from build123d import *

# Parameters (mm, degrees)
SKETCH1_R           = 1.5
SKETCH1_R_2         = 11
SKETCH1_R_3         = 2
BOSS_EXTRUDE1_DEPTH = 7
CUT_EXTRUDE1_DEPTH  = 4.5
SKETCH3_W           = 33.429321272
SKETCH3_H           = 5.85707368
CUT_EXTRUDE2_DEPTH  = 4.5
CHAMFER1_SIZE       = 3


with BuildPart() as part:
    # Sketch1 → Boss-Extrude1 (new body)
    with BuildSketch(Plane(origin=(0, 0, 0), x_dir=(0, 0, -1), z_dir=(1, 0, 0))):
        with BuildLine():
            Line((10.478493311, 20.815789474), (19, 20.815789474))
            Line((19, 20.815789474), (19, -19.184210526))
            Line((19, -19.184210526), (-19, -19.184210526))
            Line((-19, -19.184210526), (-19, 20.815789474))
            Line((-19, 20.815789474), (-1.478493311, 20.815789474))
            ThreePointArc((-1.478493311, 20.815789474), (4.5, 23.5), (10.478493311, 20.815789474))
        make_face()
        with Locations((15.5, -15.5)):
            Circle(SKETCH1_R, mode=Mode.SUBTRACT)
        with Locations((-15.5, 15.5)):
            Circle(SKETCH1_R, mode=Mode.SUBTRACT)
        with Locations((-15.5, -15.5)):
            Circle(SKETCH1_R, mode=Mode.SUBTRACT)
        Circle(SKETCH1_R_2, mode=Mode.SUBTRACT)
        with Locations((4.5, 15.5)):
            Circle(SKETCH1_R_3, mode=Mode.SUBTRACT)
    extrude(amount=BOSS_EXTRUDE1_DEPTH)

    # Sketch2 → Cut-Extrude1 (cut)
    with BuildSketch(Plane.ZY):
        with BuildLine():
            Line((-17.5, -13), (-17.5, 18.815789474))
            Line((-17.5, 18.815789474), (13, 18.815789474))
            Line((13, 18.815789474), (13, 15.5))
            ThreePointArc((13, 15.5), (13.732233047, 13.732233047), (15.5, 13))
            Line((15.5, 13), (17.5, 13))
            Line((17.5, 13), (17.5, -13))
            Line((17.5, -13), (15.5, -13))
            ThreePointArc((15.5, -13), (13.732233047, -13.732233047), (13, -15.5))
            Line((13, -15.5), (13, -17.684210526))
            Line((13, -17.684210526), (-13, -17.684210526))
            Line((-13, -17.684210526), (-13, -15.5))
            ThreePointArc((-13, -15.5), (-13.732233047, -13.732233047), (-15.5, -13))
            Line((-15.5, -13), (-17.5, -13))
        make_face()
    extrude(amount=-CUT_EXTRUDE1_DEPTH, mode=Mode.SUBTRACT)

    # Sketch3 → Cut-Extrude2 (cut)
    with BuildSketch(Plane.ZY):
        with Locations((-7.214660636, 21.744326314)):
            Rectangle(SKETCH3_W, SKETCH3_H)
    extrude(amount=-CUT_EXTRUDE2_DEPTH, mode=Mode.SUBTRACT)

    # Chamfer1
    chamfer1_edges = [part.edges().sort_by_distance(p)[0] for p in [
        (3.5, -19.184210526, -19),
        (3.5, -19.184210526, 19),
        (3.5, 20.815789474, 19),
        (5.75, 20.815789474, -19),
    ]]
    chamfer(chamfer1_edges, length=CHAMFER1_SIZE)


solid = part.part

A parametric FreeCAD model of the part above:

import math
import FreeCAD as App
import Part
import Sketcher

V = App.Vector
Q = App.Units.Quantity


def edges_at(feature, points):
    """Names of the edges that pass closest to the given points."""
    edges = feature.Shape.Edges
    near = lambda p: min(range(len(edges)), key=lambda i: edges[i].distToShape(Part.Vertex(*p))[0])
    return sorted({f"Edge{near(p) + 1}" for p in points})

doc = App.newDocument("Part")
body = doc.addObject("PartDesign::Body", "Body")

# Sketch on YZ plane
sketch1 = doc.addObject("Sketcher::SketchObject", "Sketch")
body.addObject(sketch1)
sketch1.AttachmentSupport = (doc.YZ_Plane, [""])
sketch1.MapMode = "FlatFace"
sketch1.addGeometry([
    Part.LineSegment(V(20.8, -19, 0), V(20.8, -10.5, 0)),  # 0
    Part.ArcOfCircle(Part.Circle(V(15.5, -4.5, 0), V(0, 0, 1), 8), math.radians(-48), math.radians(48)),  # 1
    Part.LineSegment(V(20.8, 1.5, 0), V(20.8, 19, 0)),  # 2
    Part.LineSegment(V(20.8, 19, 0), V(-19.2, 19, 0)),  # 3
    Part.LineSegment(V(-19.2, 19, 0), V(-19.2, -19, 0)),  # 4
    Part.LineSegment(V(-19.2, -19, 0), V(20.8, -19, 0)),  # 5
    Part.Circle(V(-15.5, -15.5, 0), V(0, 0, 1), 1.5),  # 6
    Part.Circle(V(-15.5, 15.5, 0), V(0, 0, 1), 1.5),  # 7
    Part.Circle(V(0, 0, 0), V(0, 0, 1), 11),  # 8
    Part.Circle(V(15.5, -4.5, 0), V(0, 0, 1), 2),  # 9
    Part.Circle(V(15.5, 15.5, 0), V(0, 0, 1), 1.5),  # 10
], False)
sketch1.addConstraint([
    Sketcher.Constraint("Coincident", 0, 2, 1, 1),
    Sketcher.Constraint("Coincident", 1, 2, 2, 1),
    Sketcher.Constraint("Coincident", 2, 2, 3, 1),
    Sketcher.Constraint("Coincident", 3, 2, 4, 1),
    Sketcher.Constraint("Coincident", 4, 2, 5, 1),
    Sketcher.Constraint("Coincident", 5, 2, 0, 1),
    Sketcher.Constraint("Vertical", 0),
    Sketcher.Constraint("Vertical", 2),
    Sketcher.Constraint("Horizontal", 3),
    Sketcher.Constraint("Vertical", 4),
    Sketcher.Constraint("Horizontal", 5),
    Sketcher.Constraint("Coincident", 8, 3, -1, 1),
    Sketcher.Constraint("Coincident", 9, 3, 1, 3),
    Sketcher.Constraint("Equal", 6, 7),
    Sketcher.Constraint("Equal", 7, 10),
    Sketcher.Constraint("Symmetric", 6, 3, 10, 3, -1, 1),
    Sketcher.Constraint("Symmetric", 7, 3, 10, 3, -2),
    Sketcher.Constraint("Symmetric", 2, 2, 5, 2, -1),
    Sketcher.Constraint("Vertical", 9, 3, 10, 3),
    Sketcher.Constraint("Diameter", 6, Q("3 mm")),
    Sketcher.Constraint("Diameter", 8, Q("22 mm")),
    Sketcher.Constraint("Diameter", 9, Q("4 mm")),
    Sketcher.Constraint("Radius", 1, Q("8 mm")),
    Sketcher.Constraint("DistanceX", 3, 2, 3, 1, Q("40 mm")),
    Sketcher.Constraint("DistanceY", 4, 2, 4, 1, Q("38 mm")),
    Sketcher.Constraint("DistanceX", 6, 3, 1, 3, Q("31 mm")),
    Sketcher.Constraint("DistanceY", 6, 3, 1, 3, Q("11 mm")),
    Sketcher.Constraint("DistanceY", 6, 3, 7, 3, Q("31 mm")),
    Sketcher.Constraint("DistanceY", 0, 1, 0, 2, Q("8.521507 mm")),
])
pad1 = doc.addObject("PartDesign::Pad", "Pad")
body.addObject(pad1)
pad1.Profile = sketch1
pad1.Length = 7

# Sketch on YZ plane
sketch2 = doc.addObject("Sketcher::SketchObject", "Sketch001")
body.addObject(sketch2)
sketch2.AttachmentSupport = (doc.YZ_Plane, [""])
sketch2.MapMode = "FlatFace"
sketch2.addGeometry([
    Part.LineSegment(V(18.8, -17.5, 0), V(-13, -17.5, 0)),  # 0
    Part.LineSegment(V(-13, -17.5, 0), V(-13, -15.5, 0)),  # 1
    Part.ArcOfCircle(Part.Circle(V(-15.5, -15.5, 0), V(0, 0, 1), 2.5), math.radians(0), math.radians(90)),  # 2
    Part.LineSegment(V(-15.5, -13, 0), V(-17.7, -13, 0)),  # 3
    Part.LineSegment(V(-17.7, -13, 0), V(-17.7, 13, 0)),  # 4
    Part.LineSegment(V(-17.7, 13, 0), V(-15.5, 13, 0)),  # 5
    Part.ArcOfCircle(Part.Circle(V(-15.5, 15.5, 0), V(0, 0, 1), 2.5), math.radians(-90), math.radians(0)),  # 6
    Part.LineSegment(V(-13, 15.5, 0), V(-13, 17.5, 0)),  # 7
    Part.LineSegment(V(-13, 17.5, 0), V(13, 17.5, 0)),  # 8
    Part.LineSegment(V(13, 17.5, 0), V(13, 15.5, 0)),  # 9
    Part.ArcOfCircle(Part.Circle(V(15.5, 15.5, 0), V(0, 0, 1), 2.5), math.radians(180), math.radians(270)),  # 10
    Part.LineSegment(V(15.5, 13, 0), V(18.8, 13, 0)),  # 11
    Part.LineSegment(V(18.8, 13, 0), V(18.8, -17.5, 0)),  # 12
], False)
sketch2.addConstraint([
    Sketcher.Constraint("Coincident", 0, 2, 1, 1),
    Sketcher.Constraint("Tangent", 1, 2, 2, 1),
    Sketcher.Constraint("Tangent", 2, 2, 3, 1),
    Sketcher.Constraint("Coincident", 3, 2, 4, 1),
    Sketcher.Constraint("Coincident", 4, 2, 5, 1),
    Sketcher.Constraint("Tangent", 5, 2, 6, 1),
    Sketcher.Constraint("Tangent", 6, 2, 7, 1),
    Sketcher.Constraint("Coincident", 7, 2, 8, 1),
    Sketcher.Constraint("Coincident", 8, 2, 9, 1),
    Sketcher.Constraint("Tangent", 9, 2, 10, 1),
    Sketcher.Constraint("Tangent", 10, 2, 11, 1),
    Sketcher.Constraint("Coincident", 11, 2, 12, 1),
    Sketcher.Constraint("Coincident", 12, 2, 0, 1),
    Sketcher.Constraint("Horizontal", 0),
    Sketcher.Constraint("Vertical", 1),
    Sketcher.Constraint("Horizontal", 3),
    Sketcher.Constraint("Vertical", 4),
    Sketcher.Constraint("Horizontal", 5),
    Sketcher.Constraint("Vertical", 7),
    Sketcher.Constraint("Horizontal", 8),
    Sketcher.Constraint("Vertical", 9),
    Sketcher.Constraint("Horizontal", 11),
    Sketcher.Constraint("Vertical", 12),
    Sketcher.Constraint("Equal", 2, 6),
    Sketcher.Constraint("Equal", 6, 10),
    Sketcher.Constraint("Symmetric", 2, 3, 10, 3, -1, 1),
    Sketcher.Constraint("Symmetric", 6, 3, 10, 3, -2),
    Sketcher.Constraint("Equal", 8, 4),
    Sketcher.Constraint("Equal", 1, 7),
    Sketcher.Constraint("Radius", 2, Q("2.5 mm")),
    Sketcher.Constraint("DistanceX", 8, 1, 8, 2, Q("26 mm")),
    Sketcher.Constraint("DistanceY", 1, 1, 1, 2, Q("2 mm")),
    Sketcher.Constraint("DistanceX", 0, 2, 0, 1, Q("31.815789 mm")),
    Sketcher.Constraint("DistanceX", 3, 2, 3, 1, Q("2.184211 mm")),
])
pocket1 = doc.addObject("PartDesign::Pocket", "Pocket")
body.addObject(pocket1)
pocket1.Profile = sketch2
pocket1.Length = 4.5
pocket1.Reversed = True

# Sketch on YZ plane
sketch3 = doc.addObject("Sketcher::SketchObject", "Sketch002")
body.addObject(sketch3)
sketch3.AttachmentSupport = (doc.YZ_Plane, [""])
sketch3.MapMode = "FlatFace"
sketch3.addGeometry([
    Part.LineSegment(V(25, -24, 0), V(19, -24, 0)),
    Part.LineSegment(V(19, -24, 0), V(19, 10, 0)),
    Part.LineSegment(V(19, 10, 0), V(25, 10, 0)),
    Part.LineSegment(V(25, 10, 0), V(25, -24, 0)),
], False)
sketch3.addConstraint([
    Sketcher.Constraint("Coincident", 0, 2, 1, 1),
    Sketcher.Constraint("Coincident", 1, 2, 2, 1),
    Sketcher.Constraint("Coincident", 2, 2, 3, 1),
    Sketcher.Constraint("Coincident", 3, 2, 0, 1),
    Sketcher.Constraint("Horizontal", 0),
    Sketcher.Constraint("Vertical", 1),
    Sketcher.Constraint("Horizontal", 2),
    Sketcher.Constraint("Vertical", 3),
    Sketcher.Constraint("DistanceY", -1, 1, 1, 2, Q("9.5 mm")),
    Sketcher.Constraint("DistanceY", 1, 1, 1, 2, Q("33.429321 mm")),
    Sketcher.Constraint("DistanceX", 0, 2, 0, 1, Q("5.857074 mm")),
    Sketcher.Constraint("DistanceX", -1, 1, 0, 2, Q("18.815789 mm")),
])
pocket2 = doc.addObject("PartDesign::Pocket", "Pocket001")
body.addObject(pocket2)
pocket2.Profile = sketch3
pocket2.Length = 4.5
pocket2.Reversed = True
doc.recompute()

chamfer = doc.addObject("PartDesign::Chamfer", "Chamfer")
body.addObject(chamfer)
chamfer.Base = (pocket2, edges_at(pocket2, [
    (3.5, -19.184, -19),
    (3.5, -19.184, 19),
    (3.5, 20.816, 19),
    (5.75, 20.816, -19),
]))
chamfer.Size = 3

doc.recompute()
